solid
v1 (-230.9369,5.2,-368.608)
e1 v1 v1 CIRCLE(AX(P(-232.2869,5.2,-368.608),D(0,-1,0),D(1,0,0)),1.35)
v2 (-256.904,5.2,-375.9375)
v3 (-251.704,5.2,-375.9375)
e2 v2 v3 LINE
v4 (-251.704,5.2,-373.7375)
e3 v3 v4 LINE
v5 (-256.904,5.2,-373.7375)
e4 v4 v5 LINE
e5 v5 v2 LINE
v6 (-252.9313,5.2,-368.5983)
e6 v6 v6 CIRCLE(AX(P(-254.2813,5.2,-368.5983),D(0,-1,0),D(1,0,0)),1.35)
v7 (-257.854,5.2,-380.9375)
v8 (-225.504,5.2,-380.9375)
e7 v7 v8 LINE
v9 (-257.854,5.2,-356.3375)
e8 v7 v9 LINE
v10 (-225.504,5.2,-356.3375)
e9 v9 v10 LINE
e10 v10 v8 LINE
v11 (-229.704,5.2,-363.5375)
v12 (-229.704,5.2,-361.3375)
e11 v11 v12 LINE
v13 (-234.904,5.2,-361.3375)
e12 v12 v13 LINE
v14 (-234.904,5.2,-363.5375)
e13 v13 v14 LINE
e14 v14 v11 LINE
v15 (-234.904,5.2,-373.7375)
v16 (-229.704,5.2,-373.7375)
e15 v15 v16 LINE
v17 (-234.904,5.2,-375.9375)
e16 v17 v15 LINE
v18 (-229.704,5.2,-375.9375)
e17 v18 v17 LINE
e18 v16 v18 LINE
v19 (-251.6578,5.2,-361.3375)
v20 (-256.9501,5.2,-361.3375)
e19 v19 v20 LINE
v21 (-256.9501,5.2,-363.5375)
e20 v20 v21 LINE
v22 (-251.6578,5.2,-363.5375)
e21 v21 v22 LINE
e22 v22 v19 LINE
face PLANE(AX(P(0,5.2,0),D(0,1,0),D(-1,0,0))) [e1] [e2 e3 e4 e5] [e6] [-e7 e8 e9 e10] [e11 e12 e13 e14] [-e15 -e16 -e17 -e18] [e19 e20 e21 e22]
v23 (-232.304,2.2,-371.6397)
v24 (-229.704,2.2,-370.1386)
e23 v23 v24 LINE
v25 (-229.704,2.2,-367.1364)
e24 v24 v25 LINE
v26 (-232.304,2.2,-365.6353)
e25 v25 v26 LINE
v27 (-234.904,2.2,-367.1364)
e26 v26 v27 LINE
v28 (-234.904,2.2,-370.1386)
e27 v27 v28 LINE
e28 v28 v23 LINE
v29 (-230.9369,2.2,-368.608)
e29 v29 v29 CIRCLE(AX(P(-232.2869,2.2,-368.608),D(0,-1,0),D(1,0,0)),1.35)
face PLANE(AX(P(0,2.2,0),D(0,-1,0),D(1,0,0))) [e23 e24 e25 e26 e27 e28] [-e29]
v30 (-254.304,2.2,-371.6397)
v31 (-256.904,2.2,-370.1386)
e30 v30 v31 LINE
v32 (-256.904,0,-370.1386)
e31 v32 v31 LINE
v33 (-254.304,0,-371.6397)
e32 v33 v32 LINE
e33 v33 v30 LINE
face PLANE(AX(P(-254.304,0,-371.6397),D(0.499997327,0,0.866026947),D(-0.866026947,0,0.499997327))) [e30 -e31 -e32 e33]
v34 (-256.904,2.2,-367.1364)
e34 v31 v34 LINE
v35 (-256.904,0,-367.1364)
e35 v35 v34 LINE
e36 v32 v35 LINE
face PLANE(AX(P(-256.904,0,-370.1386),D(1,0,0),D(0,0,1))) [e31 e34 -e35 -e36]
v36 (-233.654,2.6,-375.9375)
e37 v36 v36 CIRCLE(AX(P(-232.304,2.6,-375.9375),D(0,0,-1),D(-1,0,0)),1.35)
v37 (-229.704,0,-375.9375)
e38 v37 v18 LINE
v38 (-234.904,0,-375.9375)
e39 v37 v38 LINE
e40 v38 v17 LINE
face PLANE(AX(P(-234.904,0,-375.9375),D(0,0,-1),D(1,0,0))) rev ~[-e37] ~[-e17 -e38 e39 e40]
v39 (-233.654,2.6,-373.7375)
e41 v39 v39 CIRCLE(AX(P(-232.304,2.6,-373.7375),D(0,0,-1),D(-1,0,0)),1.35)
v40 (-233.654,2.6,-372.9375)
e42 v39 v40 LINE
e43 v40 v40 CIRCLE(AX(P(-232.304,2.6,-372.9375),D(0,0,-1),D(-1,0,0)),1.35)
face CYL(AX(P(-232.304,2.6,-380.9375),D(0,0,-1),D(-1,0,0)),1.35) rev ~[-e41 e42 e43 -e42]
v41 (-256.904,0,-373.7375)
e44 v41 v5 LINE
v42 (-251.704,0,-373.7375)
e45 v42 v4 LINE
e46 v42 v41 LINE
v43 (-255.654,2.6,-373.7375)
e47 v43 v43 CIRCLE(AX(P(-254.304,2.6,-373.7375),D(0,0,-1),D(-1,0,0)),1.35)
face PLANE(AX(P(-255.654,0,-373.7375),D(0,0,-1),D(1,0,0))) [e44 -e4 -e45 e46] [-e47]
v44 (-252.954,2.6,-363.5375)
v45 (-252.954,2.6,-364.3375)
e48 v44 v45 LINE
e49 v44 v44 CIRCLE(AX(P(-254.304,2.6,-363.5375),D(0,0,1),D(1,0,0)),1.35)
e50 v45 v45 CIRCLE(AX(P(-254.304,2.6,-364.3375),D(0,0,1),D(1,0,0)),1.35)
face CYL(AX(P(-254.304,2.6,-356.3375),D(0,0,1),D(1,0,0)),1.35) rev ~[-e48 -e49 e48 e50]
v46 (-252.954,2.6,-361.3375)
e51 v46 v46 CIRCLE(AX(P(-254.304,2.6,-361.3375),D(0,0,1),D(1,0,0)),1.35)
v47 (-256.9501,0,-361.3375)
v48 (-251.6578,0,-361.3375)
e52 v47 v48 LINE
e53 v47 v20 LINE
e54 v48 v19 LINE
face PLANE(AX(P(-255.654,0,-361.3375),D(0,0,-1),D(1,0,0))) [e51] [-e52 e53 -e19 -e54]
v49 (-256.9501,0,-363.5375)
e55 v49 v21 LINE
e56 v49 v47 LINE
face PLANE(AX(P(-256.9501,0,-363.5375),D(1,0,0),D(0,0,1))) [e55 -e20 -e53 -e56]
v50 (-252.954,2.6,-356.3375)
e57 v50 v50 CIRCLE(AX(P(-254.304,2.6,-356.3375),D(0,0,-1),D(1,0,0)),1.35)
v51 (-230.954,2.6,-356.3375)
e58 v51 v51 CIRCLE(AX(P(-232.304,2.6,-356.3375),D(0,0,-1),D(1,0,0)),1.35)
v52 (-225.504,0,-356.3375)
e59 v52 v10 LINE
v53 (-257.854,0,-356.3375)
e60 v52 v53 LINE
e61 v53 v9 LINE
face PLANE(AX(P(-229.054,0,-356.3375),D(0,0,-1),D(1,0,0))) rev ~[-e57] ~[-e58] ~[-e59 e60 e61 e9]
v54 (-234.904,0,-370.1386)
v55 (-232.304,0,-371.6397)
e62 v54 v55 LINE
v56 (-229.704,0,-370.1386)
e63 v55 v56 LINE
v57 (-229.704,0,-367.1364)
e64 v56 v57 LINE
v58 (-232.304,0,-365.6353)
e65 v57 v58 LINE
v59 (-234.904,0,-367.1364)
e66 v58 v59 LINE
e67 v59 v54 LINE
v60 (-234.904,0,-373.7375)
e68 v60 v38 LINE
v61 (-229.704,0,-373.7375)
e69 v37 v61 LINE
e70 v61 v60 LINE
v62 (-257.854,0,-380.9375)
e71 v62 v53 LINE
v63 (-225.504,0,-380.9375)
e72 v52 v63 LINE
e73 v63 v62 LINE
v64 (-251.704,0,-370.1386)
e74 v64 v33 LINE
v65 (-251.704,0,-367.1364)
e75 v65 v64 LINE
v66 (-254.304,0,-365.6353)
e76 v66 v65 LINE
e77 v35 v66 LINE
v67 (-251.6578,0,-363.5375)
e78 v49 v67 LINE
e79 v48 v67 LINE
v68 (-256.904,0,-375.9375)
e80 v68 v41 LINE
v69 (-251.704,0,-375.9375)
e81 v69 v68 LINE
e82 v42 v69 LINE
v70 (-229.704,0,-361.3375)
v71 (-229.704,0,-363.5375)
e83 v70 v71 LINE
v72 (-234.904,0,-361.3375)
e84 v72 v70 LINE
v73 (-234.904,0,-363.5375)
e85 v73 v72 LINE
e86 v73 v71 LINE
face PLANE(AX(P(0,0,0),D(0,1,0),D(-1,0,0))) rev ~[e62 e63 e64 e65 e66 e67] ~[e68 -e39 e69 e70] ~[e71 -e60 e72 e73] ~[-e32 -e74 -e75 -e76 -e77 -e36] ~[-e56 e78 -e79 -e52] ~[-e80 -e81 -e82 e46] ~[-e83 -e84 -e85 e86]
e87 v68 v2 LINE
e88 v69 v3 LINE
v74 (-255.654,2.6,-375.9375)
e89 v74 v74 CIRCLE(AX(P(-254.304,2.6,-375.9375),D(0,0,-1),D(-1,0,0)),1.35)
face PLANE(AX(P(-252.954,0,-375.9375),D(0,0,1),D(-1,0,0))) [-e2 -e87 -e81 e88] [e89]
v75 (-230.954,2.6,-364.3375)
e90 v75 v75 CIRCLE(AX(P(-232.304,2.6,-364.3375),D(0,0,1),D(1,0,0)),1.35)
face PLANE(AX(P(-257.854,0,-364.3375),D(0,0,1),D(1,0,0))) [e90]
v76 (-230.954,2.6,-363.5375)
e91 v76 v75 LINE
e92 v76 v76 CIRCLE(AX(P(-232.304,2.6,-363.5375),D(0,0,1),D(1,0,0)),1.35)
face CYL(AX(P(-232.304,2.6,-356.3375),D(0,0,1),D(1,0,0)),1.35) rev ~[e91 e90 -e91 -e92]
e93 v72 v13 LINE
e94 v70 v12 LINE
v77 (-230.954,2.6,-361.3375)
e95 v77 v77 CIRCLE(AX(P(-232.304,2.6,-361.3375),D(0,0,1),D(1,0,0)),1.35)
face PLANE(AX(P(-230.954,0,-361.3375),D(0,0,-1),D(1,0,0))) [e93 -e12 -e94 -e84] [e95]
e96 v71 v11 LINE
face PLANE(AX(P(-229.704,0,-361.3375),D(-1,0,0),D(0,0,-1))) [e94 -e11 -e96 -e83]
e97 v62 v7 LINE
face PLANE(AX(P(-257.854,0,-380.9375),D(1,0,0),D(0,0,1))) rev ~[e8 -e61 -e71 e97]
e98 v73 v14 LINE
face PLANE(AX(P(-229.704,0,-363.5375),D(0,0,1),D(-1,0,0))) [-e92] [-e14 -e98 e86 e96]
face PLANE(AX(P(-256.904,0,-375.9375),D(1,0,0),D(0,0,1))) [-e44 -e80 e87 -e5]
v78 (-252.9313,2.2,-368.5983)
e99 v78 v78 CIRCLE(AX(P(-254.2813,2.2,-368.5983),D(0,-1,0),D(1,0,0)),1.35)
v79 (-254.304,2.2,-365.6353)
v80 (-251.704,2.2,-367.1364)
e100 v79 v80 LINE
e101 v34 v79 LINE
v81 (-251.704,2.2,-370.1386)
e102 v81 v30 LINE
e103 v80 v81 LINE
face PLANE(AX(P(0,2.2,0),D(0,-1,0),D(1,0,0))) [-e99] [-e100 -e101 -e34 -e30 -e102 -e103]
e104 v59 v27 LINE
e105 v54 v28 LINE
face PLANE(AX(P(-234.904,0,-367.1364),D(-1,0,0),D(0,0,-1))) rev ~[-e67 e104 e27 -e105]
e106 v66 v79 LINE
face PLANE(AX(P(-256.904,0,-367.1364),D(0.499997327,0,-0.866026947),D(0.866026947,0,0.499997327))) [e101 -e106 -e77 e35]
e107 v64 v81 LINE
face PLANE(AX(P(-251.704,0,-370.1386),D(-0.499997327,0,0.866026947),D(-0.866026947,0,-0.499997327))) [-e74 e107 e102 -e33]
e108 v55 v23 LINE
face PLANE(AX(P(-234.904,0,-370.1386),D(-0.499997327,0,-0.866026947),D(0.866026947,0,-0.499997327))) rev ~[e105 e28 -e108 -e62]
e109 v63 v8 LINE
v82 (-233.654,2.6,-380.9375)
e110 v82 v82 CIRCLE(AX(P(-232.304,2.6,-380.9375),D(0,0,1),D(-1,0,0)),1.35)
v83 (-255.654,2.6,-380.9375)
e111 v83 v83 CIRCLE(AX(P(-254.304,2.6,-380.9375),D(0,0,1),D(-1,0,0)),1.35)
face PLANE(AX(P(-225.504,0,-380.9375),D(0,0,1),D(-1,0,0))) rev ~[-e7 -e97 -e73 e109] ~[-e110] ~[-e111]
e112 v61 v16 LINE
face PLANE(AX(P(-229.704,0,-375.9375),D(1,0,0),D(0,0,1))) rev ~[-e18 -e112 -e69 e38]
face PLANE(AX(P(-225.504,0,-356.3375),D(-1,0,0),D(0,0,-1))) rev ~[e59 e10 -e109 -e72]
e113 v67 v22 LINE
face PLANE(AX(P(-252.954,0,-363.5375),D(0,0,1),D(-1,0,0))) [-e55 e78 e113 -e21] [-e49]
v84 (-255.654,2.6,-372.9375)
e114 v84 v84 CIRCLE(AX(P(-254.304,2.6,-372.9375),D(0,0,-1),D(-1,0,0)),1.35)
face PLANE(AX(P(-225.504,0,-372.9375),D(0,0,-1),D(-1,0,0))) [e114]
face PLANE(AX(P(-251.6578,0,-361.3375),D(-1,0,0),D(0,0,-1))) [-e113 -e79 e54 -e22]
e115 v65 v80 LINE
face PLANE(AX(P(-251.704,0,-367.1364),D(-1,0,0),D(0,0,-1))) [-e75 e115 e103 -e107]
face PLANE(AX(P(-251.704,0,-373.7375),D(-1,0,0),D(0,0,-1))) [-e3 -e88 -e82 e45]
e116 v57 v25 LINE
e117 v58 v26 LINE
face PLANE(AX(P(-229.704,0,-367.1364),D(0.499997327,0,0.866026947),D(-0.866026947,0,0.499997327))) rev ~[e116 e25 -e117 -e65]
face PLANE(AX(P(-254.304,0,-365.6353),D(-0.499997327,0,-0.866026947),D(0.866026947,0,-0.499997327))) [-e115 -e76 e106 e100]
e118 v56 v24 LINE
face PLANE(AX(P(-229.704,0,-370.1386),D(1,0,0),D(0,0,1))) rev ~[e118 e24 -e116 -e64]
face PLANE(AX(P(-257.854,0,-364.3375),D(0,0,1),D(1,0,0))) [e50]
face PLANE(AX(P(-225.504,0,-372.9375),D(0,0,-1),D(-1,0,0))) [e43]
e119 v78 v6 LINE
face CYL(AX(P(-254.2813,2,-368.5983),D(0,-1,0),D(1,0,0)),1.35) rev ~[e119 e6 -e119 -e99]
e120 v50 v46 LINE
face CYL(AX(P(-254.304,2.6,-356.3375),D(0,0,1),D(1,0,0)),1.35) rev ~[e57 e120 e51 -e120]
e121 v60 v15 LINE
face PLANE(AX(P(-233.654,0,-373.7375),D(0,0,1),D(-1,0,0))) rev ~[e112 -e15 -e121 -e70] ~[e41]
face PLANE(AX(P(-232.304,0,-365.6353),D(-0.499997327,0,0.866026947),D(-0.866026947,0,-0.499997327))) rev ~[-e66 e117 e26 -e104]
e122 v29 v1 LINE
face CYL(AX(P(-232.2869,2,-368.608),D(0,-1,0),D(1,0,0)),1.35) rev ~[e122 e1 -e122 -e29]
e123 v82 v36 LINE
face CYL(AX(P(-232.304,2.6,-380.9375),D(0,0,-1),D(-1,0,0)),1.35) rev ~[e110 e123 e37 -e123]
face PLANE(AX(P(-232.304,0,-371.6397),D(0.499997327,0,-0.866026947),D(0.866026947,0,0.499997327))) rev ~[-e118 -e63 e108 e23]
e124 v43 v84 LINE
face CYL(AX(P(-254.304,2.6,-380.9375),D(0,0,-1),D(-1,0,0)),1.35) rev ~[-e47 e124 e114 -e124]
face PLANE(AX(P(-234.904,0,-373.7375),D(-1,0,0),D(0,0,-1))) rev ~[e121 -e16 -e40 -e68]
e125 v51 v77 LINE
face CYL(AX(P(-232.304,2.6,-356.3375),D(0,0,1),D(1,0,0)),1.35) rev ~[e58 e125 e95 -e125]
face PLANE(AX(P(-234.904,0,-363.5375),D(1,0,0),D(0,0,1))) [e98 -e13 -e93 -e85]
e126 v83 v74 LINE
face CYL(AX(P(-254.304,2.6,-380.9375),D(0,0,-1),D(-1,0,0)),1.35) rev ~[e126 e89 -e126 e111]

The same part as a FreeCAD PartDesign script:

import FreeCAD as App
import Part
import Sketcher
from FreeCAD import Vector
Q = App.Units.Quantity

doc = App.newDocument("Part")
body = doc.addObject("PartDesign::Body", "Body")

# Sketch on XZ plane
sketch1 = body.newObject("Sketcher::SketchObject", "Sketch")
sketch1.AttachmentSupport = (doc.getObject("XZ_Plane"), [""])
sketch1.MapMode = "FlatFace"
sketch1.addGeometry([
    Part.LineSegment(Vector(-226, -381, 0), Vector(-258, -381, 0)),
    Part.LineSegment(Vector(-258, -381, 0), Vector(-258, -356, 0)),
    Part.LineSegment(Vector(-258, -356, 0), Vector(-226, -356, 0)),
    Part.LineSegment(Vector(-226, -356, 0), Vector(-226, -381, 0)),
], False)
sketch1.addConstraint([
    Sketcher.Constraint("Coincident", 0, 2, 1, 1),
    Sketcher.Constraint("Coincident", 1, 2, 2, 1),
    Sketcher.Constraint("Coincident", 2, 2, 3, 1),
    Sketcher.Constraint("Coincident", 3, 2, 0, 1),
    Sketcher.Constraint("Horizontal", 0),
    Sketcher.Constraint("Vertical", 1),
    Sketcher.Constraint("Horizontal", 2),
    Sketcher.Constraint("Vertical", 3),
    Sketcher.Constraint("DistanceY", 1, 1, 1, 2, 24.6),
    Sketcher.Constraint("DistanceX", 0, 2, 0, 1, 32.35),
    Sketcher.Constraint("DistanceX", 0, 2, -1, 1, 257.854),
    Sketcher.Constraint("DistanceY", 0, 2, -1, 1, 380.9375),
])
pad1 = body.newObject("PartDesign::Pad", "Pad")
pad1.Profile = sketch1
pad1.Length = 5.2
pad1.Reversed = True

# Sketch on XY plane
sketch2 = body.newObject("Sketcher::SketchObject", "Sketch001")
sketch2.AttachmentSupport = (doc.getObject("XY_Plane"), [""])
sketch2.MapMode = "FlatFace"
sketch2.AttachmentOffset = App.Placement(Vector(0, 0, -380.9375), App.Rotation())
sketch2.addGeometry([
    Part.Circle(Vector(-232.3, 2.6, 0), Vector(0, 0, 1), 1.4),
    Part.Circle(Vector(-254.3, 2.6, 0), Vector(0, 0, 1), 1.4),
], False)
sketch2.addConstraint([
    Sketcher.Constraint("Equal", 0, 1),
    Sketcher.Constraint("Horizontal", 0, 3, 1, 3),
    Sketcher.Constraint("Diameter", 0, 2.7),
    Sketcher.Constraint("DistanceX", 1, 3, 0, 3, 22.0),
    Sketcher.Constraint("DistanceY", -1, 1, 0, 3, 2.6),
    Sketcher.Constraint("DistanceX", 0, 3, -1, 1, 232.304),
])
pocket1 = body.newObject("PartDesign::Pocket", "Pocket")
pocket1.Profile = sketch2
pocket1.Length = 8
pocket1.Reversed = True

# Sketch on XY plane
sketch3 = body.newObject("Sketcher::SketchObject", "Sketch002")
sketch3.AttachmentSupport = (doc.getObject("XY_Plane"), [""])
sketch3.MapMode = "FlatFace"
sketch3.AttachmentOffset = App.Placement(Vector(0, 0, -356.3375), App.Rotation())
sketch3.addGeometry([
    Part.Circle(Vector(-254.3, 2.6, 0), Vector(0, 0, 1), 1.4),
    Part.Circle(Vector(-232.3, 2.6, 0), Vector(0, 0, 1), 1.4),
], False)
sketch3.addConstraint([
    Sketcher.Constraint("Equal", 0, 1),
    Sketcher.Constraint("Horizontal", 0, 3, 1, 3),
    Sketcher.Constraint("Diameter", 0, 2.7),
    Sketcher.Constraint("DistanceX", 0, 3, 1, 3, 22.0),
    Sketcher.Constraint("DistanceY", -1, 1, 0, 3, 2.6),
    Sketcher.Constraint("DistanceX", 0, 3, -1, 1, 254.304),
])
pocket2 = body.newObject("PartDesign::Pocket", "Pocket001")
pocket2.Profile = sketch3
pocket2.Length = 8

# Sketch on XZ plane
sketch4 = body.newObject("Sketcher::SketchObject", "Sketch003")
sketch4.AttachmentSupport = (doc.getObject("XZ_Plane"), [""])
sketch4.MapMode = "FlatFace"
sketch4.addGeometry([
    Part.LineSegment(Vector(-231.1, -366.5, 0), Vector(-232.3, -365.8, 0)),  # 0
    Part.LineSegment(Vector(-232.3, -365.8, 0), Vector(-233.6, -366.5, 0)),  # 1
    Part.LineSegment(Vector(-233.6, -366.5, 0), Vector(-234.8, -367.2, 0)),  # 2
    Part.LineSegment(Vector(-234.8, -367.2, 0), Vector(-234.8, -370.1, 0)),  # 3
    Part.LineSegment(Vector(-234.8, -370.1, 0), Vector(-232.3, -371.5, 0)),  # 4
    Part.LineSegment(Vector(-232.3, -371.5, 0), Vector(-229.8, -370.1, 0)),  # 5
    Part.LineSegment(Vector(-229.8, -370.1, 0), Vector(-229.8, -367.2, 0)),  # 6
    Part.LineSegment(Vector(-229.8, -367.2, 0), Vector(-231.1, -366.5, 0)),  # 7
    Part.LineSegment(Vector(-253.1, -366.5, 0), Vector(-254.3, -365.8, 0)),  # 8
    Part.LineSegment(Vector(-254.3, -365.8, 0), Vector(-255.6, -366.5, 0)),  # 9
    Part.LineSegment(Vector(-255.6, -366.5, 0), Vector(-256.8, -367.2, 0)),  # 10
    Part.LineSegment(Vector(-256.8, -367.2, 0), Vector(-256.8, -370.1, 0)),  # 11
    Part.LineSegment(Vector(-256.8, -370.1, 0), Vector(-254.3, -371.5, 0)),  # 12
    Part.LineSegment(Vector(-254.3, -371.5, 0), Vector(-251.8, -370.1, 0)),  # 13
    Part.LineSegment(Vector(-251.8, -370.1, 0), Vector(-251.8, -367.2, 0)),  # 14
    Part.LineSegment(Vector(-251.8, -367.2, 0), Vector(-253.1, -366.5, 0)),  # 15
], False)
sketch4.addConstraint([
    Sketcher.Constraint("Coincident", 0, 2, 1, 1),
    Sketcher.Constraint("Coincident", 1, 2, 2, 1),
    Sketcher.Constraint("Coincident", 2, 2, 3, 1),
    Sketcher.Constraint("Coincident", 3, 2, 4, 1),
    Sketcher.Constraint("Coincident", 4, 2, 5, 1),
    Sketcher.Constraint("Coincident", 5, 2, 6, 1),
    Sketcher.Constraint("Coincident", 6, 2, 7, 1),
    Sketcher.Constraint("Coincident", 7, 2, 0, 1),
    Sketcher.Constraint("Coincident", 8, 2, 9, 1),
    Sketcher.Constraint("Coincident", 9, 2, 10, 1),
    Sketcher.Constraint("Coincident", 10, 2, 11, 1),
    Sketcher.Constraint("Coincident", 11, 2, 12, 1),
    Sketcher.Constraint("Coincident", 12, 2, 13, 1),
    Sketcher.Constraint("Coincident", 13, 2, 14, 1),
    Sketcher.Constraint("Coincident", 14, 2, 15, 1),
    Sketcher.Constraint("Coincident", 15, 2, 8, 1),
    Sketcher.Constraint("Vertical", 3),
    Sketcher.Constraint("Vertical", 6),
    Sketcher.Constraint("Vertical", 11),
    Sketcher.Constraint("Vertical", 14),
    Sketcher.Constraint("Parallel", 1, 2),
    Sketcher.Constraint("Parallel", 0, 4),
    Sketcher.Constraint("Parallel", 2, 5),
    Sketcher.Constraint("Parallel", 4, 7),
    Sketcher.Constraint("Parallel", 7, 8),
    Sketcher.Constraint("Parallel", 5, 9),
    Sketcher.Constraint("Parallel", 9, 10),
    Sketcher.Constraint("Parallel", 8, 12),
    Sketcher.Constraint("Parallel", 10, 13),
    Sketcher.Constraint("Parallel", 12, 15),
    Sketcher.Constraint("Horizontal", 3, 2, 5, 2),
    Sketcher.Constraint("Horizontal", 2, 2, 6, 2),
    Sketcher.Constraint("Horizontal", 1, 2, 7, 2),
    Sketcher.Constraint("Horizontal", 0, 2, 8, 2),
    Sketcher.Constraint("Horizontal", 7, 2, 9, 2),
    Sketcher.Constraint("Horizontal", 6, 2, 10, 2),
    Sketcher.Constraint("Horizontal", 5, 2, 11, 2),
    Sketcher.Constraint("Horizontal", 4, 2, 12, 2),
    Sketcher.Constraint("Horizontal", 11, 2, 13, 2),
    Sketcher.Constraint("Horizontal", 9, 2, 15, 2),
    Sketcher.Constraint("Vertical", 0, 2, 4, 2),
    Sketcher.Constraint("Equal", 1, 2),
    Sketcher.Constraint("Angle", 0, Q("149.9996 deg")),
    Sketcher.Constraint("DistanceX", 3, 2, 5, 2, 5.0),
    Sketcher.Constraint("DistanceX", 8, 2, 0, 2, 22.0),
    Sketcher.Constraint("DistanceY", 4, 2, 0, 2, 5.7735),
    Sketcher.Constraint("DistanceX", 0, 2, -1, 1, 232.304),
    Sketcher.Constraint("DistanceY", 2, 2, -1, 1, 367.194),
])
pocket3 = body.newObject("PartDesign::Pocket", "Pocket002")
pocket3.Profile = sketch4
pocket3.Length = 2

# Sketch on XZ plane
sketch5 = body.newObject("Sketcher::SketchObject", "Sketch004")
sketch5.AttachmentSupport = (doc.getObject("XZ_Plane"), [""])
sketch5.MapMode = "FlatFace"
sketch5.AttachmentOffset = App.Placement(Vector(0, 0, -2), App.Rotation())
sketch5.addGeometry([
    Part.Circle(Vector(-254.3, -368.6, 0), Vector(0, 0, 1), 1.4),
    Part.Circle(Vector(-232.3, -368.6, 0), Vector(0, 0, 1), 1.4),
], False)
sketch5.addConstraint([
    Sketcher.Constraint("Equal", 0, 1),
    Sketcher.Constraint("Diameter", 0, 2.7),
    Sketcher.Constraint("DistanceX", 1, 3, -1, 1, 232.287),
    Sketcher.Constraint("DistanceY", 1, 3, -1, 1, 368.608),
    Sketcher.Constraint("DistanceX", 0, 3, -1, 1, 254.2813),
    Sketcher.Constraint("DistanceY", 0, 3, -1, 1, 368.5983),
])
pocket4 = body.newObject("PartDesign::Pocket", "Pocket003")
pocket4.Profile = sketch5
pocket4.Length = 8

# Sketch on XZ plane
sketch6 = body.newObject("Sketcher::SketchObject", "Sketch005")
sketch6.AttachmentSupport = (doc.getObject("XZ_Plane"), [""])
sketch6.MapMode = "FlatFace"
sketch6.addGeometry([
    Part.LineSegment(Vector(-229.7, -367.1, 0), Vector(-232.3, -365.6, 0)),  # 0
    Part.LineSegment(Vector(-232.3, -365.6, 0), Vector(-234.9, -367.1, 0)),  # 1
    Part.LineSegment(Vector(-234.9, -367.1, 0), Vector(-234.9, -370.1, 0)),  # 2
    Part.LineSegment(Vector(-234.9, -370.1, 0), Vector(-232.3, -371.6, 0)),  # 3
    Part.LineSegment(Vector(-232.3, -371.6, 0), Vector(-229.7, -370.1, 0)),  # 4
    Part.LineSegment(Vector(-229.7, -370.1, 0), Vector(-229.7, -367.1, 0)),  # 5
    Part.LineSegment(Vector(-251.7, -370.1, 0), Vector(-251.7, -367.1, 0)),  # 6
    Part.LineSegment(Vector(-251.7, -367.1, 0), Vector(-254.3, -365.6, 0)),  # 7
    Part.LineSegment(Vector(-254.3, -365.6, 0), Vector(-256.9, -367.1, 0)),  # 8
    Part.LineSegment(Vector(-256.9, -367.1, 0), Vector(-256.9, -370.1, 0)),  # 9
    Part.LineSegment(Vector(-256.9, -370.1, 0), Vector(-254.3, -371.6, 0)),  # 10
    Part.LineSegment(Vector(-254.3, -371.6, 0), Vector(-251.7, -370.1, 0)),  # 11
], False)
sketch6.addConstraint([
    Sketcher.Constraint("Coincident", 0, 2, 1, 1),
    Sketcher.Constraint("Coincident", 1, 2, 2, 1),
    Sketcher.Constraint("Coincident", 2, 2, 3, 1),
    Sketcher.Constraint("Coincident", 3, 2, 4, 1),
    Sketcher.Constraint("Coincident", 4, 2, 5, 1),
    Sketcher.Constraint("Coincident", 5, 2, 0, 1),
    Sketcher.Constraint("Coincident", 6, 2, 7, 1),
    Sketcher.Constraint("Coincident", 7, 2, 8, 1),
    Sketcher.Constraint("Coincident", 8, 2, 9, 1),
    Sketcher.Constraint("Coincident", 9, 2, 10, 1),
    Sketcher.Constraint("Coincident", 10, 2, 11, 1),
    Sketcher.Constraint("Coincident", 11, 2, 6, 1),
    Sketcher.Constraint("Vertical", 2),
    Sketcher.Constraint("Vertical", 5),
    Sketcher.Constraint("Vertical", 6),
    Sketcher.Constraint("Vertical", 9),
    Sketcher.Constraint("Parallel", 0, 3),
    Sketcher.Constraint("Parallel", 1, 4),
    Sketcher.Constraint("Parallel", 3, 7),
    Sketcher.Constraint("Parallel", 4, 8),
    Sketcher.Constraint("Parallel", 7, 10),
    Sketcher.Constraint("Parallel", 8, 11),
    Sketcher.Constraint("Horizontal", 2, 2, 4, 2),
    Sketcher.Constraint("Horizontal", 1, 2, 5, 2),
    Sketcher.Constraint("Horizontal", 5, 2, 6, 2),
    Sketcher.Constraint("Horizontal", 0, 2, 7, 2),
    Sketcher.Constraint("Horizontal", 6, 2, 8, 2),
    Sketcher.Constraint("Horizontal", 4, 2, 9, 2),
    Sketcher.Constraint("Horizontal", 3, 2, 10, 2),
    Sketcher.Constraint("Vertical", 0, 2, 3, 2),
    Sketcher.Constraint("Angle", 0, Q("150.0002 deg")),
    Sketcher.Constraint("DistanceX", 6, 2, 5, 2, 22.0),
    Sketcher.Constraint("DistanceX", 1, 2, 0, 2, 2.6),
    Sketcher.Constraint("DistanceY", 2, 2, 2, 1, 3.0022),
    Sketcher.Constraint("DistanceX", 0, 2, -1, 1, 232.304),
    Sketcher.Constraint("DistanceY", 0, 2, -1, 1, 365.6353),
])
pocket5 = body.newObject("PartDesign::Pocket", "Pocket004")
pocket5.Profile = sketch6
pocket5.Length = 2.2

# Sketch on XZ plane
sketch7 = body.newObject("Sketcher::SketchObject", "Sketch006")
sketch7.AttachmentSupport = (doc.getObject("XZ_Plane"), [""])
sketch7.MapMode = "FlatFace"
sketch7.addGeometry([
    Part.LineSegment(Vector(-251.7, -375.9, 0), Vector(-251.7, -373.7, 0)),  # 0
    Part.LineSegment(Vector(-251.7, -373.7, 0), Vector(-256.9, -373.7, 0)),  # 1
    Part.LineSegment(Vector(-256.9, -373.7, 0), Vector(-256.9, -375.9, 0)),  # 2
    Part.LineSegment(Vector(-256.9, -375.9, 0), Vector(-251.7, -375.9, 0)),  # 3
    Part.LineSegment(Vector(-234.9, -375.9, 0), Vector(-229.7, -375.9, 0)),  # 4
    Part.LineSegment(Vector(-229.7, -375.9, 0), Vector(-229.7, -373.7, 0)),  # 5
    Part.LineSegment(Vector(-229.7, -373.7, 0), Vector(-234.9, -373.7, 0)),  # 6
    Part.LineSegment(Vector(-234.9, -373.7, 0), Vector(-234.9, -375.9, 0)),  # 7
    Part.LineSegment(Vector(-257, -361.3, 0), Vector(-257, -363.5, 0)),  # 8
    Part.LineSegment(Vector(-257, -363.5, 0), Vector(-251.7, -363.5, 0)),  # 9
    Part.LineSegment(Vector(-251.7, -363.5, 0), Vector(-251.7, -361.3, 0)),  # 10
    Part.LineSegment(Vector(-251.7, -361.3, 0), Vector(-257, -361.3, 0)),  # 11
    Part.LineSegment(Vector(-229.7, -361.3, 0), Vector(-234.9, -361.3, 0)),  # 12
    Part.LineSegment(Vector(-234.9, -361.3, 0), Vector(-234.9, -363.5, 0)),  # 13
    Part.LineSegment(Vector(-234.9, -363.5, 0), Vector(-229.7, -363.5, 0)),  # 14
    Part.LineSegment(Vector(-229.7, -363.5, 0), Vector(-229.7, -361.3, 0)),  # 15
], False)
sketch7.addConstraint([
    Sketcher.Constraint("Coincident", 0, 2, 1, 1),
    Sketcher.Constraint("Coincident", 1, 2, 2, 1),
    Sketcher.Constraint("Coincident", 2, 2, 3, 1),
    Sketcher.Constraint("Coincident", 3, 2, 0, 1),
    Sketcher.Constraint("Coincident", 4, 2, 5, 1),
    Sketcher.Constraint("Coincident", 5, 2, 6, 1),
    Sketcher.Constraint("Coincident", 6, 2, 7, 1),
    Sketcher.Constraint("Coincident", 7, 2, 4, 1),
    Sketcher.Constraint("Coincident", 8, 2, 9, 1),
    Sketcher.Constraint("Coincident", 9, 2, 10, 1),
    Sketcher.Constraint("Coincident", 10, 2, 11, 1),
    Sketcher.Constraint("Coincident", 11, 2, 8, 1),
    Sketcher.Constraint("Coincident", 12, 2, 13, 1),
    Sketcher.Constraint("Coincident", 13, 2, 14, 1),
    Sketcher.Constraint("Coincident", 14, 2, 15, 1),
    Sketcher.Constraint("Coincident", 15, 2, 12, 1),
    Sketcher.Constraint("Vertical", 0),
    Sketcher.Constraint("Horizontal", 1),
    Sketcher.Constraint("Vertical", 2),
    Sketcher.Constraint("Horizontal", 3),
    Sketcher.Constraint("Horizontal", 4),
    Sketcher.Constraint("Vertical", 5),
    Sketcher.Constraint("Horizontal", 6),
    Sketcher.Constraint("Vertical", 7),
    Sketcher.Constraint("Vertical", 8),
    Sketcher.Constraint("Horizontal", 9),
    Sketcher.Constraint("Vertical", 10),
    Sketcher.Constraint("Horizontal", 11),
    Sketcher.Constraint("Horizontal", 12),
    Sketcher.Constraint("Vertical", 13),
    Sketcher.Constraint("Horizontal", 14),
    Sketcher.Constraint("Vertical", 15),
    Sketcher.Constraint("Horizontal", 3, 2, 4, 2),
    Sketcher.Constraint("Horizontal", 1, 2, 5, 2),
    Sketcher.Constraint("Horizontal", 11, 2, 12, 2),
    Sketcher.Constraint("Horizontal", 9, 2, 13, 2),
    Sketcher.Constraint("Vertical", 7, 2, 12, 2),
    Sketcher.Constraint("Vertical", 5, 2, 14, 2),
    Sketcher.Constraint("Equal", 3, 4),
    Sketcher.Constraint("Equal", 7, 8),
    Sketcher.Constraint("DistanceX", 1, 2, 1, 1, 5.2),
    Sketcher.Constraint("DistanceY", 0, 1, 0, 2, 2.2),
    Sketcher.Constraint("DistanceX", 3, 2, 4, 2, 22.0),
    Sketcher.Constraint("DistanceY", 1, 2, 8, 2, 10.2),
    Sketcher.Constraint("DistanceX", 8, 2, -1, 1, 256.95),
    Sketcher.Constraint("DistanceX", 9, 1, 9, 2, 5.2923),
    Sketcher.Constraint("DistanceX", 0, 2, -1, 1, 251.704),
    Sketcher.Constraint("DistanceY", 0, 2, -1, 1, 373.7375),
])
pocket6 = body.newObject("PartDesign::Pocket", "Pocket005")
pocket6.Profile = sketch7
pocket6.Length = 6

doc.recompute()
